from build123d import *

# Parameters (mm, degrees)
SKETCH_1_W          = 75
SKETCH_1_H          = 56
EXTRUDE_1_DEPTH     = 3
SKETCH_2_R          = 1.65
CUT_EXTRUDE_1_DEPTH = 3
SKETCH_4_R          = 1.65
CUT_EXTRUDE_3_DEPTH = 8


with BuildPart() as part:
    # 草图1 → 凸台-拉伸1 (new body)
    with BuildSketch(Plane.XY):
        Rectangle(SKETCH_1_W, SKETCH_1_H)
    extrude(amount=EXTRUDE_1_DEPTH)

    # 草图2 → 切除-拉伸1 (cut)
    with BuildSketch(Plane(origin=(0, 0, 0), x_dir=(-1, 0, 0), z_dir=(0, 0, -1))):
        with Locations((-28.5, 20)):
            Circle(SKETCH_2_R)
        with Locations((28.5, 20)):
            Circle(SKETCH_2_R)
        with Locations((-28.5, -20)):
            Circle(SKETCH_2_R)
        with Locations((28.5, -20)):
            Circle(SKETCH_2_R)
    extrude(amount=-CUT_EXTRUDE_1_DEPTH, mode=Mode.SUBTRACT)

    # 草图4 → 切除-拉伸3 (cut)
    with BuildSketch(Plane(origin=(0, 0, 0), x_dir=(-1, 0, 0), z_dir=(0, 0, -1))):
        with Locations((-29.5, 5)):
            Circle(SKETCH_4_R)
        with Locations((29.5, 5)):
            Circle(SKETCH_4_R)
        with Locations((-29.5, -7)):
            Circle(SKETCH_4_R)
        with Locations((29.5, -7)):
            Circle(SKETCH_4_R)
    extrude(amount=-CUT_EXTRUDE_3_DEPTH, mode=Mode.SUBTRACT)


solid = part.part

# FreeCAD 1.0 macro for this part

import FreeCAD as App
import Part
import Sketcher
from FreeCAD import Vector
Q = App.Units.Quantity


def add_polygon(sketch, points):
    """Adds a closed chain of lines whose ends are joined by coincident constraints."""
    first, n = sketch.GeometryCount, len(points)
    for a, b in zip(points, points[1:] + points[:1]):
        sketch.addGeometry(Part.LineSegment(App.Vector(*a, 0), App.Vector(*b, 0)), False)
    for i in range(n):
        sketch.addConstraint(Sketcher.Constraint("Coincident", first + i, 2, first + (i + 1) % n, 1))

doc = App.newDocument("Part")
params = doc.addObject("Spreadsheet::Sheet", "Params")
for row, (alias, value) in enumerate([
    ("sketch1_width", "75 mm"),
    ("sketch1_height", "56 mm"),
    ("pad1_length", "3 mm"),
    ("sketch2_diameter", "3.3 mm"),
    ("pocket1_length", "3 mm"),
    ("sketch3_diameter", "3.3 mm"),
    ("pocket2_length", "8 mm"),
], start=1):
    params.set(f"A{row}", alias)
    params.set(f"B{row}", "=" + value)
    params.setAlias(f"B{row}", alias)

body = doc.addObject("PartDesign::Body", "Body")

sketch1 = doc.addObject("Sketcher::SketchObject", "Sketch")
body.addObject(sketch1)
sketch1.AttachmentSupport = (doc.XY_Plane, [""])
sketch1.MapMode = "FlatFace"
add_polygon(sketch1, [(-38, 28), (-38, -28), (38, -28), (38, 28)])
sketch1.addConstraint([
    Sketcher.Constraint("Vertical", 0),
    Sketcher.Constraint("Horizontal", 1),
    Sketcher.Constraint("Vertical", 2),
    Sketcher.Constraint("Horizontal", 3),
    Sketcher.Constraint("Symmetric", 0, 2, 2, 2, -1, 1),
    Sketcher.Constraint("DistanceX", 1, 1, 1, 2, Q("75 mm")),
    Sketcher.Constraint("DistanceY", 0, 2, 0, 1, Q("56 mm")),
])
sketch1.setExpression("Constraints[9]", "Params.sketch1_width")
sketch1.setExpression("Constraints[10]", "Params.sketch1_height")
pad1 = doc.addObject("PartDesign::Pad", "Pad")
body.addObject(pad1)
pad1.Profile = sketch1
pad1.setExpression("Length", "Params.pad1_length")

sketch2 = doc.addObject("Sketcher::SketchObject", "Sketch001")
body.addObject(sketch2)
sketch2.AttachmentSupport = (doc.XY_Plane, [""])
sketch2.MapMode = "FlatFace"
sketch2.addGeometry([
    Part.Circle(Vector(28.5, 20, 0), Vector(0, 0, 1), 1.6),
    Part.Circle(Vector(-28.5, 20, 0), Vector(0, 0, 1), 1.6),
    Part.Circle(Vector(28.5, -20, 0), Vector(0, 0, 1), 1.6),
    Part.Circle(Vector(-28.5, -20, 0), Vector(0, 0, 1), 1.6),
], False)
sketch2.addConstraint([
    Sketcher.Constraint("Equal", 0, 1),
    Sketcher.Constraint("Equal", 1, 2),
    Sketcher.Constraint("Equal", 2, 3),
    Sketcher.Constraint("Symmetric", 1, 3, 2, 3, -1, 1),
    Sketcher.Constraint("Symmetric", 0, 3, 3, 3, -1, 1),
    Sketcher.Constraint("Symmetric", 0, 3, 1, 3, -2),
    Sketcher.Constraint("Diameter", 0, Q("3.3 mm")),
    Sketcher.Constraint("DistanceY", -1, 1, 0, 3, Q("20 mm")),
    Sketcher.Constraint("DistanceX", 1, 3, 0, 3, Q("57 mm")),
])
sketch2.setExpression("Constraints[6]", "Params.sketch2_diameter")
pocket1 = doc.addObject("PartDesign::Pocket", "Pocket")
body.addObject(pocket1)
pocket1.Profile = sketch2
pocket1.setExpression("Length", "Params.pocket1_length")
pocket1.Reversed = True

sketch3 = doc.addObject("Sketcher::SketchObject", "Sketch002")
body.addObject(sketch3)
sketch3.AttachmentSupport = (doc.XY_Plane, [""])
sketch3.MapMode = "FlatFace"
sketch3.addGeometry([
    Part.Circle(Vector(29.5, 5, 0), Vector(0, 0, 1), 1.6),
    Part.Circle(Vector(-29.5, 5, 0), Vector(0, 0, 1), 1.6),
    Part.Circle(Vector(29.5, -7, 0), Vector(0, 0, 1), 1.6),
    Part.Circle(Vector(-29.5, -7, 0), Vector(0, 0, 1), 1.6),
], False)
sketch3.addConstraint([
    Sketcher.Constraint("Equal", 0, 1),
    Sketcher.Constraint("Equal", 1, 2),
    Sketcher.Constraint("Equal", 2, 3),
    Sketcher.Constraint("Symmetric", 0, 3, 1, 3, -2),
    Sketcher.Constraint("Symmetric", 2, 3, 3, 3, -2),
    Sketcher.Constraint("Vertical", 0, 3, 2, 3),
    Sketcher.Constraint("Diameter", 0, Q("3.3 mm")),
    Sketcher.Constraint("DistanceY", -1, 1, 0, 3, Q("5 mm")),
    Sketcher.Constraint("DistanceY", 2, 3, -1, 1, Q("7 mm")),
    Sketcher.Constraint("DistanceX", 1, 3, 0, 3, Q("59 mm")),
])
sketch3.setExpression("Constraints[6]", "Params.sketch3_diameter")
pocket2 = doc.addObject("PartDesign::Pocket", "Pocket001")
body.addObject(pocket2)
pocket2.Profile = sketch3
pocket2.setExpression("Length", "Params.pocket2_length")
pocket2.Reversed = True

doc.recompute()
